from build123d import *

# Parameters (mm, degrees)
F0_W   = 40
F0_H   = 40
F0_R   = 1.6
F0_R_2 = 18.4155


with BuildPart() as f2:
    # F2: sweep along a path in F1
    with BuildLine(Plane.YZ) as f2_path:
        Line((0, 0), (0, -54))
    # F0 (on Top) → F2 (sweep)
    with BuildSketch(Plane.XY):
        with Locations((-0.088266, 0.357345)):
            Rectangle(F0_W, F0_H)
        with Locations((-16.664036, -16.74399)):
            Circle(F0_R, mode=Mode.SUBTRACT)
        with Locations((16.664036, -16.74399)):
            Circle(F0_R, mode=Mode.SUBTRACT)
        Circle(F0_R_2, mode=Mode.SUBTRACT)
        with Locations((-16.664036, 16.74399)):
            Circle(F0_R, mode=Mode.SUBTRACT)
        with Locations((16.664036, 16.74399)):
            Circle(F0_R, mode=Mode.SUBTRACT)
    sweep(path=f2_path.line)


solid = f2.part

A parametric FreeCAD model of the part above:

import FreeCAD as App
import Part
import Sketcher

V = App.Vector
Q = App.Units.Quantity

doc = App.newDocument("Part")
params = doc.addObject("Spreadsheet::Sheet", "Params")
for row, (alias, value) in enumerate([
    ("sketch1_diameter", "3.2 mm"),
    ("sketch1_width", "40 mm"),
    ("sketch2_height", "54 mm"),
], start=1):
    params.set(f"A{row}", alias)
    params.set(f"B{row}", "=" + value)
    params.setAlias(f"B{row}", alias)

body = doc.addObject("PartDesign::Body", "Body")

sketch1 = doc.addObject("Sketcher::SketchObject", "Sketch")
body.addObject(sketch1)
sketch1.AttachmentSupport = (doc.XY_Plane, [""])
sketch1.MapMode = "FlatFace"
sketch1.addGeometry([
    Part.LineSegment(V(-20.088266, 20.357345, 0), V(-20.088266, -19.642655, 0)),
    Part.LineSegment(V(-20.088266, -19.642655, 0), V(19.911734, -19.642655, 0)),
    Part.LineSegment(V(19.911734, -19.642655, 0), V(19.911734, 20.357345, 0)),
    Part.LineSegment(V(19.911734, 20.357345, 0), V(-20.088266, 20.357345, 0)),
    Part.Circle(V(-16.664036, -16.74399, 0), V(0, 0, 1), 1.6),
    Part.Circle(V(16.664036, -16.74399, 0), V(0, 0, 1), 1.6),
    Part.Circle(V(-16.664036, 16.74399, 0), V(0, 0, 1), 1.6),
    Part.Circle(V(0, 0, 0), V(0, 0, 1), 18.4155),
    Part.Circle(V(16.664036, 16.74399, 0), V(0, 0, 1), 1.6),
], False)
sketch1.addConstraint([
    Sketcher.Constraint("Coincident", 0, 2, 1, 1),
    Sketcher.Constraint("Coincident", 1, 2, 2, 1),
    Sketcher.Constraint("Coincident", 2, 2, 3, 1),
    Sketcher.Constraint("Coincident", 3, 2, 0, 1),
    Sketcher.Constraint("Vertical", 0),
    Sketcher.Constraint("Horizontal", 1),
    Sketcher.Constraint("Vertical", 2),
    Sketcher.Constraint("Horizontal", 3),
    Sketcher.Constraint("Coincident", 7, 3, -1, 1),
    Sketcher.Constraint("Equal", 4, 5),
    Sketcher.Constraint("Equal", 5, 6),
    Sketcher.Constraint("Equal", 6, 8),
    Sketcher.Constraint("Symmetric", 5, 3, 6, 3, -1, 1),
    Sketcher.Constraint("Symmetric", 4, 3, 8, 3, -1, 1),
    Sketcher.Constraint("Symmetric", 4, 3, 5, 3, -2),
    Sketcher.Constraint("Equal", 3, 0),
    Sketcher.Constraint("Diameter", 4, Q("3.2 mm")),
    Sketcher.Constraint("DistanceX", 1, 1, 1, 2, Q("40 mm")),
    Sketcher.Constraint("Diameter", 7, Q("36.831 mm")),
    Sketcher.Constraint("DistanceY", 4, 3, -1, 1, Q("16.74399 mm")),
    Sketcher.Constraint("DistanceX", 0, 2, 4, 3, Q("3.42423 mm")),
    Sketcher.Constraint("DistanceX", 4, 3, -1, 1, Q("16.664036 mm")),
    Sketcher.Constraint("DistanceY", 0, 2, -1, 1, Q("19.642655 mm")),
])
sketch1.setExpression("Constraints[16]", "Params.sketch1_diameter")
sketch1.setExpression("Constraints[17]", "Params.sketch1_width")

sketch2 = doc.addObject("Sketcher::SketchObject", "Sketch001")
body.addObject(sketch2)
sketch2.AttachmentSupport = (doc.XZ_Plane, [""])
sketch2.MapMode = "FlatFace"
sketch2.addGeometry(Part.LineSegment(V(0, 0, 0), V(0, -54, 0)), False)
sketch2.addConstraint([
    Sketcher.Constraint("Vertical", 0),
    Sketcher.Constraint("Coincident", 0, 1, -1, 1),
    Sketcher.Constraint("DistanceY", 0, 2, 0, 1, Q("54 mm")),
])
sketch2.setExpression("Constraints[2]", "Params.sketch2_height")
doc.recompute()

additivepipe = doc.addObject("PartDesign::AdditivePipe", "AdditivePipe")
body.addObject(additivepipe)
additivepipe.Profile = sketch1
additivepipe.Spine = (sketch2, ["Edge1"])

doc.recompute()
